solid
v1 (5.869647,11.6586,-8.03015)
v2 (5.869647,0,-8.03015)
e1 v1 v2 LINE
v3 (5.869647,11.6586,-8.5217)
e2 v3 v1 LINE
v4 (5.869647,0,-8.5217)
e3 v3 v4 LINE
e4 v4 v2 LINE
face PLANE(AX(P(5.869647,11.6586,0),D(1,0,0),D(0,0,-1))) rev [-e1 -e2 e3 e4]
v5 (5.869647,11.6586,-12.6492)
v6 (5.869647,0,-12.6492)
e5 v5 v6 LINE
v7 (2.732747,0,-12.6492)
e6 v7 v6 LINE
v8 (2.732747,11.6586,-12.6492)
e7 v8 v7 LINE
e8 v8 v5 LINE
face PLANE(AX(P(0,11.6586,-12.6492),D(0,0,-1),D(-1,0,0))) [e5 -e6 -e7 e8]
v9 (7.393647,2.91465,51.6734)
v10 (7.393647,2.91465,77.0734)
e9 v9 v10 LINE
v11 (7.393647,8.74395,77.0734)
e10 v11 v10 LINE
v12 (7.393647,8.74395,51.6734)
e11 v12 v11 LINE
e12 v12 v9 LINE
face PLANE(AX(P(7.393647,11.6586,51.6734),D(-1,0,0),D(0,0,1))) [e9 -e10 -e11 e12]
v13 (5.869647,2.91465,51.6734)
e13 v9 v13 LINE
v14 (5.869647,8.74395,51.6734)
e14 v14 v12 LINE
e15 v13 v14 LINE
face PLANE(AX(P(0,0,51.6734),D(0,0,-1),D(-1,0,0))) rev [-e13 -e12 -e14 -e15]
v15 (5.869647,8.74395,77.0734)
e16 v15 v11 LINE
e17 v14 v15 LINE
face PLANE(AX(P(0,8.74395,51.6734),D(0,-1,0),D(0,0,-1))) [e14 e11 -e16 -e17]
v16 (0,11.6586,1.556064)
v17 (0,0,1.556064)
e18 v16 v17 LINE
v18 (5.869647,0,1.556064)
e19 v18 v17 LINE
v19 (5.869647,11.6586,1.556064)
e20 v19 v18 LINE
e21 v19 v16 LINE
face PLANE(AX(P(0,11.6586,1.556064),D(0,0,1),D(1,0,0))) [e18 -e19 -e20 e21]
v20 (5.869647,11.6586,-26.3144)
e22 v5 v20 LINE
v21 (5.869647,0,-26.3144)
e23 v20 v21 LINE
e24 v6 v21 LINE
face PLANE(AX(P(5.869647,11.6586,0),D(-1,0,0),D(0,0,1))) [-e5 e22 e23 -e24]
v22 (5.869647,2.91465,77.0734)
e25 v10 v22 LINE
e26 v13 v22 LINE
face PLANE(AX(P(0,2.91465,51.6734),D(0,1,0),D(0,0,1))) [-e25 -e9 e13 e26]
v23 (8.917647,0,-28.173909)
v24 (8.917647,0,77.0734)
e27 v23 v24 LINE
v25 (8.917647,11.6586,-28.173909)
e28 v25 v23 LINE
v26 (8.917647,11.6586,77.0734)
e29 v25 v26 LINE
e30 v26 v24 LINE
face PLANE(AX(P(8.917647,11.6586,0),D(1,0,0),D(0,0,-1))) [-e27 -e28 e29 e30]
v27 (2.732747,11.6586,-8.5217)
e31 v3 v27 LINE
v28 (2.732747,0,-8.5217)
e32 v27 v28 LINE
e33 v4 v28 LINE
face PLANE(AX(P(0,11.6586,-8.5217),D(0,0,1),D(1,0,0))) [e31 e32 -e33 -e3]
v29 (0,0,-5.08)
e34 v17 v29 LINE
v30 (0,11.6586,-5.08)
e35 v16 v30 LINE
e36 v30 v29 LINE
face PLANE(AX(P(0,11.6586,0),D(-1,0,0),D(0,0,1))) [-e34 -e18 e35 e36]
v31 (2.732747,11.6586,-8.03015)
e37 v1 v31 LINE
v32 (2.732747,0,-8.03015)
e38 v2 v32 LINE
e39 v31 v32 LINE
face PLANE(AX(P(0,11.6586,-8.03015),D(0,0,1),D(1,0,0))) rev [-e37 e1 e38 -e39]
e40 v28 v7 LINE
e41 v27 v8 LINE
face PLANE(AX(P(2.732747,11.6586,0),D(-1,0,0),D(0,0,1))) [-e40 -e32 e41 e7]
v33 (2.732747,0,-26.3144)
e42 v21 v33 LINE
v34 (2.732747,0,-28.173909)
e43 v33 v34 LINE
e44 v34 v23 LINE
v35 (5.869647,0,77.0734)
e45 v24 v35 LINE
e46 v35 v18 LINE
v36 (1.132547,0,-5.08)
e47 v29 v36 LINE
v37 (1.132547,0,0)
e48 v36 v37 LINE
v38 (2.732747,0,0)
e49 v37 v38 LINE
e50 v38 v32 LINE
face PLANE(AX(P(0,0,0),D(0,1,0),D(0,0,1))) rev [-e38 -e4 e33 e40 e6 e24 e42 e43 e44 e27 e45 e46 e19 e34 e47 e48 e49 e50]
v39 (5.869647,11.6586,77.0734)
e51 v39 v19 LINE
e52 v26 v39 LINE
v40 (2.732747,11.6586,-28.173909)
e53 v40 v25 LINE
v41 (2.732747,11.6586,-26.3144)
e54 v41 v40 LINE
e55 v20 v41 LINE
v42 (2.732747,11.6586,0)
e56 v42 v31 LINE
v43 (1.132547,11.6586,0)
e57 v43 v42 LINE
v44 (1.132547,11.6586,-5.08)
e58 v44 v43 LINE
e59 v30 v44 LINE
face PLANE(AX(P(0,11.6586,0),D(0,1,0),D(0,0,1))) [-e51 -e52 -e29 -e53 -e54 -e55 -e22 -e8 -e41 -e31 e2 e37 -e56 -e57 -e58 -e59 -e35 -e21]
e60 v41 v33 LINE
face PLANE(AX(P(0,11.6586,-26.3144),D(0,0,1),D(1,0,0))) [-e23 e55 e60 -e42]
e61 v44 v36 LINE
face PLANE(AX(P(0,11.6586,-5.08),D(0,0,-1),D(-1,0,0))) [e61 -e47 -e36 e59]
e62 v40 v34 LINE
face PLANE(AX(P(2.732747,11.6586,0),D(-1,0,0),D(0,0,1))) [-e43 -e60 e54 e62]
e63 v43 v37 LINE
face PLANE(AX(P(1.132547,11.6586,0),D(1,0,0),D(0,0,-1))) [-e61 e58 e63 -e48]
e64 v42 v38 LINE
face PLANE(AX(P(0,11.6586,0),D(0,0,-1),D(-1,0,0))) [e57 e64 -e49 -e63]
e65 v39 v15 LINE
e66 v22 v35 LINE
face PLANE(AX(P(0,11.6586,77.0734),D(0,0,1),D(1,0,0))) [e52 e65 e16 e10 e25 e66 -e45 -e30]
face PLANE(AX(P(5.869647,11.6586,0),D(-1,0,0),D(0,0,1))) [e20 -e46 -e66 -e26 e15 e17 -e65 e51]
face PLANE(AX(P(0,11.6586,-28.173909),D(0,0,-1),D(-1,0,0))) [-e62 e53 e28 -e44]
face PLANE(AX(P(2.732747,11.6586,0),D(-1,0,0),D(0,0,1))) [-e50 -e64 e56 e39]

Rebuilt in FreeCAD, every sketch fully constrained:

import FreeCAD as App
import Part
import Sketcher
Q = App.Units.Quantity

doc = App.newDocument("Part")
params = doc.addObject("Spreadsheet::Sheet", "Params")
for row, (alias, value) in enumerate([
    ("sketch1_height", "0.2 in"),
    ("sketch1_width", "0.12 in"),
    ("sketch1_width2", "0.063 in"),
    ("sketch1_height2", "0.538 in"),
    ("sketch1_height3", "0.498 in"),
    ("pad1_length", "0.459 in"),
    ("sketch3_width", "0.06 in"),
    ("pocket2_length", "1 in"),
], start=1):
    params.set(f"A{row}", alias)
    params.set(f"B{row}", "=" + value)
    params.setAlias(f"B{row}", alias)

body = doc.addObject("PartDesign::Body", "Body")

# Sketch on XZ plane
sketch1 = body.newObject("Sketcher::SketchObject", "Sketch")
sketch1.AttachmentSupport = (doc.getObject("XZ_Plane"), [""])
sketch1.MapMode = "FlatFace"
sketch1.addGeometry([
    Part.LineSegment(App.Vector(0, -5.1, 0), App.Vector(0, 1.6, 0)),  # 0
    Part.LineSegment(App.Vector(0, 1.6, 0), App.Vector(5.9, 1.6, 0)),  # 1
    Part.LineSegment(App.Vector(5.9, 1.6, 0), App.Vector(5.9, 77.1, 0)),  # 2
    Part.LineSegment(App.Vector(5.9, 77.1, 0), App.Vector(8.9, 77.1, 0)),  # 3
    Part.LineSegment(App.Vector(8.9, 77.1, 0), App.Vector(8.9, -28.2, 0)),  # 4
    Part.LineSegment(App.Vector(8.9, -28.2, 0), App.Vector(2.7, -28.2, 0)),  # 5
    Part.LineSegment(App.Vector(2.7, -28.2, 0), App.Vector(2.7, -26.3, 0)),  # 6
    Part.LineSegment(App.Vector(2.7, -26.3, 0), App.Vector(5.9, -26.3, 0)),  # 7
    Part.LineSegment(App.Vector(5.9, -26.3, 0), App.Vector(5.9, -12.6, 0)),  # 8
    Part.LineSegment(App.Vector(5.9, -12.6, 0), App.Vector(2.7, -12.6, 0)),  # 9
    Part.LineSegment(App.Vector(2.7, -12.6, 0), App.Vector(2.7, 0, 0)),  # 10
    Part.LineSegment(App.Vector(2.7, 0, 0), App.Vector(1.1, 0, 0)),  # 11
    Part.LineSegment(App.Vector(1.1, 0, 0), App.Vector(1.1, -5.1, 0)),  # 12
    Part.LineSegment(App.Vector(1.1, -5.1, 0), App.Vector(0, -5.1, 0)),  # 13
], False)
sketch1.addConstraint([
    Sketcher.Constraint("Coincident", 0, 2, 1, 1),
    Sketcher.Constraint("Coincident", 1, 2, 2, 1),
    Sketcher.Constraint("Coincident", 2, 2, 3, 1),
    Sketcher.Constraint("Coincident", 3, 2, 4, 1),
    Sketcher.Constraint("Coincident", 4, 2, 5, 1),
    Sketcher.Constraint("Coincident", 5, 2, 6, 1),
    Sketcher.Constraint("Coincident", 6, 2, 7, 1),
    Sketcher.Constraint("Coincident", 7, 2, 8, 1),
    Sketcher.Constraint("Coincident", 8, 2, 9, 1),
    Sketcher.Constraint("Coincident", 9, 2, 10, 1),
    Sketcher.Constraint("Coincident", 10, 2, 11, 1),
    Sketcher.Constraint("Coincident", 11, 2, 12, 1),
    Sketcher.Constraint("Coincident", 12, 2, 13, 1),
    Sketcher.Constraint("Coincident", 13, 2, 0, 1),
    Sketcher.Constraint("Vertical", 0),
    Sketcher.Constraint("Horizontal", 1),
    Sketcher.Constraint("Vertical", 2),
    Sketcher.Constraint("Horizontal", 3),
    Sketcher.Constraint("Vertical", 4),
    Sketcher.Constraint("Horizontal", 5),
    Sketcher.Constraint("Vertical", 6),
    Sketcher.Constraint("Horizontal", 7),
    Sketcher.Constraint("Vertical", 8),
    Sketcher.Constraint("Horizontal", 9),
    Sketcher.Constraint("Vertical", 10),
    Sketcher.Constraint("Horizontal", 11),
    Sketcher.Constraint("Vertical", 12),
    Sketcher.Constraint("Horizontal", 13),
    Sketcher.Constraint("PointOnObject", 0, 2, -2),
    Sketcher.Constraint("PointOnObject", 10, 2, -1),
    Sketcher.Constraint("Vertical", 2, 2, 7, 2),
    Sketcher.Constraint("Vertical", 6, 2, 9, 2),
    Sketcher.Constraint("DistanceY", 12, 2, 12, 1, Q("0.2 in")),
    Sketcher.Constraint("DistanceX", 3, 1, 3, 2, Q("0.12 in")),
    Sketcher.Constraint("DistanceX", 11, 2, 11, 1, Q("0.063 in")),
    Sketcher.Constraint("DistanceY", 8, 1, 8, 2, Q("0.538 in")),
    Sketcher.Constraint("DistanceY", 10, 1, 10, 2, Q("0.498 in")),
    Sketcher.Constraint("DistanceX", 5, 2, 5, 1, Q("0.2435 in")),
    Sketcher.Constraint("DistanceY", 4, 2, 4, 1, Q("105.247309 mm")),
    Sketcher.Constraint("DistanceY", 6, 1, 6, 2, Q("1.859509 mm")),
    Sketcher.Constraint("DistanceX", 1, 1, 1, 2, Q("5.869647 mm")),
    Sketcher.Constraint("DistanceY", 0, 1, 0, 2, Q("6.636064 mm")),
])
sketch1.setExpression("Constraints[32]", "Params.sketch1_height")
sketch1.setExpression("Constraints[33]", "Params.sketch1_width")
sketch1.setExpression("Constraints[34]", "Params.sketch1_width2")
sketch1.setExpression("Constraints[35]", "Params.sketch1_height2")
sketch1.setExpression("Constraints[36]", "Params.sketch1_height3")
pad1 = body.newObject("PartDesign::Pad", "Pad")
pad1.Profile = sketch1
pad1.setExpression("Length", "Params.pad1_length")
pad1.Reversed = True

# Sketch on XZ plane
sketch2 = body.newObject("Sketcher::SketchObject", "Sketch001")
sketch2.AttachmentSupport = (doc.getObject("XZ_Plane"), [""])
sketch2.MapMode = "FlatFace"
sketch2.addGeometry([
    Part.LineSegment(App.Vector(2.73, -8.52, 0), App.Vector(2.73, -8.03, 0)),
    Part.LineSegment(App.Vector(2.73, -8.03, 0), App.Vector(5.87, -8.03, 0)),
    Part.LineSegment(App.Vector(5.87, -8.03, 0), App.Vector(5.87, -8.52, 0)),
    Part.LineSegment(App.Vector(5.87, -8.52, 0), App.Vector(2.73, -8.52, 0)),
], False)
sketch2.addConstraint([
    Sketcher.Constraint("Coincident", 0, 2, 1, 1),
    Sketcher.Constraint("Coincident", 1, 2, 2, 1),
    Sketcher.Constraint("Coincident", 2, 2, 3, 1),
    Sketcher.Constraint("Coincident", 3, 2, 0, 1),
    Sketcher.Constraint("Vertical", 0),
    Sketcher.Constraint("Horizontal", 1),
    Sketcher.Constraint("Vertical", 2),
    Sketcher.Constraint("Horizontal", 3),
    Sketcher.Constraint("DistanceX", 1, 1, 1, 2, Q("0.1235 in")),
    Sketcher.Constraint("DistanceY", 2, 2, -1, 1, Q("0.3355 in")),
    Sketcher.Constraint("DistanceY", 0, 1, 0, 2, Q("0.49155 mm")),
    Sketcher.Constraint("DistanceX", -1, 1, 0, 2, Q("2.732747 mm")),
])
pocket1 = body.newObject("PartDesign::Pocket", "Pocket")
pocket1.Profile = sketch2
pocket1.Type = "ThroughAll"

# Sketch on XY plane
sketch3 = body.newObject("Sketcher::SketchObject", "Sketch002")
sketch3.AttachmentSupport = (doc.getObject("XY_Plane"), [""])
sketch3.MapMode = "FlatFace"
sketch3.AttachmentOffset = App.Placement(App.Vector(0, 0, 77.0734), App.Rotation())
sketch3.addGeometry([
    Part.LineSegment(App.Vector(5.9, 8.7, 0), App.Vector(5.9, 2.9, 0)),
    Part.LineSegment(App.Vector(5.9, 2.9, 0), App.Vector(7.4, 2.9, 0)),
    Part.LineSegment(App.Vector(7.4, 2.9, 0), App.Vector(7.4, 8.7, 0)),
    Part.LineSegment(App.Vector(7.4, 8.7, 0), App.Vector(5.9, 8.7, 0)),
], False)
sketch3.addConstraint([
    Sketcher.Constraint("Coincident", 0, 2, 1, 1),
    Sketcher.Constraint("Coincident", 1, 2, 2, 1),
    Sketcher.Constraint("Coincident", 2, 2, 3, 1),
    Sketcher.Constraint("Coincident", 3, 2, 0, 1),
    Sketcher.Constraint("Vertical", 0),
    Sketcher.Constraint("Horizontal", 1),
    Sketcher.Constraint("Vertical", 2),
    Sketcher.Constraint("Horizontal", 3),
    Sketcher.Constraint("DistanceX", 1, 1, 1, 2, Q("0.06 in")),
    Sketcher.Constraint("DistanceY", 0, 2, 0, 1, Q("0.2295 in")),
    Sketcher.Constraint("DistanceY", -1, 1, 0, 2, Q("2.91465 mm")),
    Sketcher.Constraint("DistanceX", -1, 1, 0, 2, Q("5.869647 mm")),
])
sketch3.setExpression("Constraints[8]", "Params.sketch3_width")
pocket2 = body.newObject("PartDesign::Pocket", "Pocket001")
pocket2.Profile = sketch3
pocket2.setExpression("Length", "Params.pocket2_length")

doc.recompute()
